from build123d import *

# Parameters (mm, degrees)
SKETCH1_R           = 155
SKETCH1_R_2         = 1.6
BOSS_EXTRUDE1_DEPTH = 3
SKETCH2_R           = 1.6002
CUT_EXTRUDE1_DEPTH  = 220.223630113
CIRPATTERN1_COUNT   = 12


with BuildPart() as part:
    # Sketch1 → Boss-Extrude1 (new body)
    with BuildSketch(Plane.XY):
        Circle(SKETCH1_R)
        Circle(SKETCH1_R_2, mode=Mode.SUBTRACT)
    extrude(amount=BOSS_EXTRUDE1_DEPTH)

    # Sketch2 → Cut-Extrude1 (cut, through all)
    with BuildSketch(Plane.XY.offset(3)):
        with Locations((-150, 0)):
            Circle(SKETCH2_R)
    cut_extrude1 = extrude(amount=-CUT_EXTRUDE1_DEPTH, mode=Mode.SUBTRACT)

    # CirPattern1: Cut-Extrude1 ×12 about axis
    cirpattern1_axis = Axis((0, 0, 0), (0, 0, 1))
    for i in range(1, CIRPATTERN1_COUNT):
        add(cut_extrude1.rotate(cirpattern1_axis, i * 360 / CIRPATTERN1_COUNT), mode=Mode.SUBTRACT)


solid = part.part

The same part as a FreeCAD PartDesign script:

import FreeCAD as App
import Part
import Sketcher

V = App.Vector
Q = App.Units.Quantity

doc = App.newDocument("Part")
params = doc.addObject("Spreadsheet::Sheet", "Params")
for row, (alias, value) in enumerate([
    ("sketch1_diameter", "310 mm"),
    ("sketch1_diameter2", "3.2 mm"),
    ("pad1_length", "3 mm"),
], start=1):
    params.set(f"A{row}", alias)
    params.set(f"B{row}", "=" + value)
    params.setAlias(f"B{row}", alias)

body = doc.addObject("PartDesign::Body", "Body")

# Sketch on XY plane
sketch1 = body.newObject("Sketcher::SketchObject", "Sketch")
sketch1.AttachmentSupport = (doc.getObject("XY_Plane"), [""])
sketch1.MapMode = "FlatFace"
sketch1.addGeometry(Part.Circle(V(0, 0, 0), V(0, 0, 1), 155), False)
sketch1.addGeometry(Part.Circle(V(0, 0, 0), V(0, 0, 1), 1.6), False)
sketch1.addConstraint(Sketcher.Constraint("Coincident", 0, 3, -1, 1))
sketch1.addConstraint(Sketcher.Constraint("Coincident", 1, 3, -1, 1))
sketch1.addConstraint(Sketcher.Constraint("Diameter", 0, Q("310 mm")))
sketch1.addConstraint(Sketcher.Constraint("Diameter", 1, Q("3.2 mm")))
sketch1.setExpression("Constraints[2]", "Params.sketch1_diameter")
sketch1.setExpression("Constraints[3]", "Params.sketch1_diameter2")
pad1 = body.newObject("PartDesign::Pad", "Pad")
pad1.Profile = sketch1
pad1.setExpression("Length", "Params.pad1_length")

# Sketch on XY plane
sketch2 = body.newObject("Sketcher::SketchObject", "Sketch001")
sketch2.AttachmentSupport = (doc.getObject("XY_Plane"), [""])
sketch2.MapMode = "FlatFace"
sketch2.AttachmentOffset = App.Placement(V(0, 0, 3), App.Rotation())
sketch2.addGeometry(Part.Circle(V(-150, 0, 0), V(0, 0, 1), 1.6), False)
sketch2.addConstraint(Sketcher.Constraint("PointOnObject", 0, 3, -1))
sketch2.addConstraint(Sketcher.Constraint("DistanceX", 0, 3, -1, 1, Q("150 mm")))
sketch2.addConstraint(Sketcher.Constraint("Diameter", 0, Q("3.2004 mm")))
pocket1 = body.newObject("PartDesign::Pocket", "Pocket")
pocket1.Profile = sketch2
pocket1.Type = "ThroughAll"
doc.recompute()

polarpattern = body.newObject("PartDesign::PolarPattern", "PolarPattern")
polarpattern.Originals = [pocket1]
polarpattern.Axis = (doc.getObject("Z_Axis"), [""])
polarpattern.Angle = 360
polarpattern.Occurrences = 12
body.Tip = polarpattern

doc.recompute()
